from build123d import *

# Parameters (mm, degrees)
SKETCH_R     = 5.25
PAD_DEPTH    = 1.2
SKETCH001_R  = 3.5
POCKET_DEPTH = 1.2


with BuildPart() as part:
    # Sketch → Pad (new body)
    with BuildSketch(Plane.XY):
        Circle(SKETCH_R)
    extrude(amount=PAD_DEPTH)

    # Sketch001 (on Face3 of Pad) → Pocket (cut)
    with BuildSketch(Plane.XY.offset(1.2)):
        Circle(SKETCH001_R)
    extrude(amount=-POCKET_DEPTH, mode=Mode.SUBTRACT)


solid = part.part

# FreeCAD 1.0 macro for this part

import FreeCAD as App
import Part
import Sketcher
from FreeCAD import Vector
Q = App.Units.Quantity

doc = App.newDocument("Part")
body = doc.addObject("PartDesign::Body", "Body")

sketch1 = body.newObject("Sketcher::SketchObject", "Sketch")
sketch1.AttachmentSupport = (doc.getObject("XY_Plane"), [""])
sketch1.MapMode = "FlatFace"
sketch1.addGeometry(Part.Circle(Vector(0, 0, 0), Vector(0, 0, 1), 5), False)
sketch1.addConstraint([
    Sketcher.Constraint("Coincident", 0, 3, -1, 1),
    Sketcher.Constraint("Diameter", 0, Q("10.5 mm")),
])
pad1 = body.newObject("PartDesign::Pad", "Pad")
pad1.Profile = sketch1
pad1.Length = 1.2

sketch2 = body.newObject("Sketcher::SketchObject", "Sketch001")
sketch2.AttachmentSupport = (doc.getObject("XY_Plane"), [""])
sketch2.MapMode = "FlatFace"
sketch2.AttachmentOffset = App.Placement(Vector(0, 0, 1.2), App.Rotation())
sketch2.addGeometry(Part.Circle(Vector(0, 0, 0), Vector(0, 0, 1), 3.5), False)
sketch2.addConstraint([
    Sketcher.Constraint("Coincident", 0, 3, -1, 1),
    Sketcher.Constraint("Diameter", 0, Q("7 mm")),
])
pocket1 = body.newObject("PartDesign::Pocket", "Pocket")
pocket1.Profile = sketch2
pocket1.Length = 1.2

doc.recompute()
